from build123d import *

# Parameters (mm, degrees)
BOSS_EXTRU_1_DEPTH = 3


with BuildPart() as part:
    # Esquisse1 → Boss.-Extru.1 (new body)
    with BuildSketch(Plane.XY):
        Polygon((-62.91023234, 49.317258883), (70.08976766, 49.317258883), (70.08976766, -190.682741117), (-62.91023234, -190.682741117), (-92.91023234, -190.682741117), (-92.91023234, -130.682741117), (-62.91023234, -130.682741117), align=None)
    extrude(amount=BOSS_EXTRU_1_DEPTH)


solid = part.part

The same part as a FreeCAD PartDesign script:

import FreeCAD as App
import Part
import Sketcher
Q = App.Units.Quantity


def add_polygon(sketch, points):
    """Adds a closed chain of lines whose ends are joined by coincident constraints."""
    first, n = sketch.GeometryCount, len(points)
    for a, b in zip(points, points[1:] + points[:1]):
        sketch.addGeometry(Part.LineSegment(App.Vector(*a, 0), App.Vector(*b, 0)), False)
    for i in range(n):
        sketch.addConstraint(Sketcher.Constraint("Coincident", first + i, 2, first + (i + 1) % n, 1))

doc = App.newDocument("Part")
params = doc.addObject("Spreadsheet::Sheet", "Params")
for row, (alias, value) in enumerate([
    ("sketch1_width", "133 mm"),
    ("sketch1_width2", "30 mm"),
    ("sketch1_height", "180 mm"),
    ("sketch1_height2", "60 mm"),
    ("pad1_length", "3 mm"),
], start=1):
    params.set(f"A{row}", alias)
    params.set(f"B{row}", "=" + value)
    params.setAlias(f"B{row}", alias)

body = doc.addObject("PartDesign::Body", "Body")

# Sketch on XY plane
sketch1 = body.newObject("Sketcher::SketchObject", "Sketch")
sketch1.AttachmentSupport = (doc.getObject("XY_Plane"), [""])
sketch1.MapMode = "FlatFace"
add_polygon(sketch1, [(70.089768, 49.317259), (-62.910232, 49.317259), (-62.910232, -130.682741), (-92.910232, -130.682741), (-92.910232, -190.682741), (70.089768, -190.682741)])  # lines 0-5
sketch1.addConstraint(Sketcher.Constraint("Horizontal", 0))
sketch1.addConstraint(Sketcher.Constraint("Vertical", 1))
sketch1.addConstraint(Sketcher.Constraint("Horizontal", 2))
sketch1.addConstraint(Sketcher.Constraint("Vertical", 3))
sketch1.addConstraint(Sketcher.Constraint("Horizontal", 4))
sketch1.addConstraint(Sketcher.Constraint("Vertical", 5))
sketch1.addConstraint(Sketcher.Constraint("DistanceX", 0, 2, 0, 1, Q("133 mm")))
sketch1.addConstraint(Sketcher.Constraint("DistanceX", 2, 2, 2, 1, Q("30 mm")))
sketch1.addConstraint(Sketcher.Constraint("DistanceY", 1, 2, 1, 1, Q("180 mm")))
sketch1.addConstraint(Sketcher.Constraint("DistanceY", 3, 2, 3, 1, Q("60 mm")))
sketch1.addConstraint(Sketcher.Constraint("DistanceY", -1, 1, 0, 2, Q("49.317259 mm")))
sketch1.addConstraint(Sketcher.Constraint("DistanceX", 0, 2, -1, 1, Q("62.910232 mm")))
sketch1.setExpression("Constraints[12]", "Params.sketch1_width")
sketch1.setExpression("Constraints[13]", "Params.sketch1_width2")
sketch1.setExpression("Constraints[14]", "Params.sketch1_height")
sketch1.setExpression("Constraints[15]", "Params.sketch1_height2")
pad1 = body.newObject("PartDesign::Pad", "Pad")
pad1.Profile = sketch1
pad1.setExpression("Length", "Params.pad1_length")

doc.recompute()
